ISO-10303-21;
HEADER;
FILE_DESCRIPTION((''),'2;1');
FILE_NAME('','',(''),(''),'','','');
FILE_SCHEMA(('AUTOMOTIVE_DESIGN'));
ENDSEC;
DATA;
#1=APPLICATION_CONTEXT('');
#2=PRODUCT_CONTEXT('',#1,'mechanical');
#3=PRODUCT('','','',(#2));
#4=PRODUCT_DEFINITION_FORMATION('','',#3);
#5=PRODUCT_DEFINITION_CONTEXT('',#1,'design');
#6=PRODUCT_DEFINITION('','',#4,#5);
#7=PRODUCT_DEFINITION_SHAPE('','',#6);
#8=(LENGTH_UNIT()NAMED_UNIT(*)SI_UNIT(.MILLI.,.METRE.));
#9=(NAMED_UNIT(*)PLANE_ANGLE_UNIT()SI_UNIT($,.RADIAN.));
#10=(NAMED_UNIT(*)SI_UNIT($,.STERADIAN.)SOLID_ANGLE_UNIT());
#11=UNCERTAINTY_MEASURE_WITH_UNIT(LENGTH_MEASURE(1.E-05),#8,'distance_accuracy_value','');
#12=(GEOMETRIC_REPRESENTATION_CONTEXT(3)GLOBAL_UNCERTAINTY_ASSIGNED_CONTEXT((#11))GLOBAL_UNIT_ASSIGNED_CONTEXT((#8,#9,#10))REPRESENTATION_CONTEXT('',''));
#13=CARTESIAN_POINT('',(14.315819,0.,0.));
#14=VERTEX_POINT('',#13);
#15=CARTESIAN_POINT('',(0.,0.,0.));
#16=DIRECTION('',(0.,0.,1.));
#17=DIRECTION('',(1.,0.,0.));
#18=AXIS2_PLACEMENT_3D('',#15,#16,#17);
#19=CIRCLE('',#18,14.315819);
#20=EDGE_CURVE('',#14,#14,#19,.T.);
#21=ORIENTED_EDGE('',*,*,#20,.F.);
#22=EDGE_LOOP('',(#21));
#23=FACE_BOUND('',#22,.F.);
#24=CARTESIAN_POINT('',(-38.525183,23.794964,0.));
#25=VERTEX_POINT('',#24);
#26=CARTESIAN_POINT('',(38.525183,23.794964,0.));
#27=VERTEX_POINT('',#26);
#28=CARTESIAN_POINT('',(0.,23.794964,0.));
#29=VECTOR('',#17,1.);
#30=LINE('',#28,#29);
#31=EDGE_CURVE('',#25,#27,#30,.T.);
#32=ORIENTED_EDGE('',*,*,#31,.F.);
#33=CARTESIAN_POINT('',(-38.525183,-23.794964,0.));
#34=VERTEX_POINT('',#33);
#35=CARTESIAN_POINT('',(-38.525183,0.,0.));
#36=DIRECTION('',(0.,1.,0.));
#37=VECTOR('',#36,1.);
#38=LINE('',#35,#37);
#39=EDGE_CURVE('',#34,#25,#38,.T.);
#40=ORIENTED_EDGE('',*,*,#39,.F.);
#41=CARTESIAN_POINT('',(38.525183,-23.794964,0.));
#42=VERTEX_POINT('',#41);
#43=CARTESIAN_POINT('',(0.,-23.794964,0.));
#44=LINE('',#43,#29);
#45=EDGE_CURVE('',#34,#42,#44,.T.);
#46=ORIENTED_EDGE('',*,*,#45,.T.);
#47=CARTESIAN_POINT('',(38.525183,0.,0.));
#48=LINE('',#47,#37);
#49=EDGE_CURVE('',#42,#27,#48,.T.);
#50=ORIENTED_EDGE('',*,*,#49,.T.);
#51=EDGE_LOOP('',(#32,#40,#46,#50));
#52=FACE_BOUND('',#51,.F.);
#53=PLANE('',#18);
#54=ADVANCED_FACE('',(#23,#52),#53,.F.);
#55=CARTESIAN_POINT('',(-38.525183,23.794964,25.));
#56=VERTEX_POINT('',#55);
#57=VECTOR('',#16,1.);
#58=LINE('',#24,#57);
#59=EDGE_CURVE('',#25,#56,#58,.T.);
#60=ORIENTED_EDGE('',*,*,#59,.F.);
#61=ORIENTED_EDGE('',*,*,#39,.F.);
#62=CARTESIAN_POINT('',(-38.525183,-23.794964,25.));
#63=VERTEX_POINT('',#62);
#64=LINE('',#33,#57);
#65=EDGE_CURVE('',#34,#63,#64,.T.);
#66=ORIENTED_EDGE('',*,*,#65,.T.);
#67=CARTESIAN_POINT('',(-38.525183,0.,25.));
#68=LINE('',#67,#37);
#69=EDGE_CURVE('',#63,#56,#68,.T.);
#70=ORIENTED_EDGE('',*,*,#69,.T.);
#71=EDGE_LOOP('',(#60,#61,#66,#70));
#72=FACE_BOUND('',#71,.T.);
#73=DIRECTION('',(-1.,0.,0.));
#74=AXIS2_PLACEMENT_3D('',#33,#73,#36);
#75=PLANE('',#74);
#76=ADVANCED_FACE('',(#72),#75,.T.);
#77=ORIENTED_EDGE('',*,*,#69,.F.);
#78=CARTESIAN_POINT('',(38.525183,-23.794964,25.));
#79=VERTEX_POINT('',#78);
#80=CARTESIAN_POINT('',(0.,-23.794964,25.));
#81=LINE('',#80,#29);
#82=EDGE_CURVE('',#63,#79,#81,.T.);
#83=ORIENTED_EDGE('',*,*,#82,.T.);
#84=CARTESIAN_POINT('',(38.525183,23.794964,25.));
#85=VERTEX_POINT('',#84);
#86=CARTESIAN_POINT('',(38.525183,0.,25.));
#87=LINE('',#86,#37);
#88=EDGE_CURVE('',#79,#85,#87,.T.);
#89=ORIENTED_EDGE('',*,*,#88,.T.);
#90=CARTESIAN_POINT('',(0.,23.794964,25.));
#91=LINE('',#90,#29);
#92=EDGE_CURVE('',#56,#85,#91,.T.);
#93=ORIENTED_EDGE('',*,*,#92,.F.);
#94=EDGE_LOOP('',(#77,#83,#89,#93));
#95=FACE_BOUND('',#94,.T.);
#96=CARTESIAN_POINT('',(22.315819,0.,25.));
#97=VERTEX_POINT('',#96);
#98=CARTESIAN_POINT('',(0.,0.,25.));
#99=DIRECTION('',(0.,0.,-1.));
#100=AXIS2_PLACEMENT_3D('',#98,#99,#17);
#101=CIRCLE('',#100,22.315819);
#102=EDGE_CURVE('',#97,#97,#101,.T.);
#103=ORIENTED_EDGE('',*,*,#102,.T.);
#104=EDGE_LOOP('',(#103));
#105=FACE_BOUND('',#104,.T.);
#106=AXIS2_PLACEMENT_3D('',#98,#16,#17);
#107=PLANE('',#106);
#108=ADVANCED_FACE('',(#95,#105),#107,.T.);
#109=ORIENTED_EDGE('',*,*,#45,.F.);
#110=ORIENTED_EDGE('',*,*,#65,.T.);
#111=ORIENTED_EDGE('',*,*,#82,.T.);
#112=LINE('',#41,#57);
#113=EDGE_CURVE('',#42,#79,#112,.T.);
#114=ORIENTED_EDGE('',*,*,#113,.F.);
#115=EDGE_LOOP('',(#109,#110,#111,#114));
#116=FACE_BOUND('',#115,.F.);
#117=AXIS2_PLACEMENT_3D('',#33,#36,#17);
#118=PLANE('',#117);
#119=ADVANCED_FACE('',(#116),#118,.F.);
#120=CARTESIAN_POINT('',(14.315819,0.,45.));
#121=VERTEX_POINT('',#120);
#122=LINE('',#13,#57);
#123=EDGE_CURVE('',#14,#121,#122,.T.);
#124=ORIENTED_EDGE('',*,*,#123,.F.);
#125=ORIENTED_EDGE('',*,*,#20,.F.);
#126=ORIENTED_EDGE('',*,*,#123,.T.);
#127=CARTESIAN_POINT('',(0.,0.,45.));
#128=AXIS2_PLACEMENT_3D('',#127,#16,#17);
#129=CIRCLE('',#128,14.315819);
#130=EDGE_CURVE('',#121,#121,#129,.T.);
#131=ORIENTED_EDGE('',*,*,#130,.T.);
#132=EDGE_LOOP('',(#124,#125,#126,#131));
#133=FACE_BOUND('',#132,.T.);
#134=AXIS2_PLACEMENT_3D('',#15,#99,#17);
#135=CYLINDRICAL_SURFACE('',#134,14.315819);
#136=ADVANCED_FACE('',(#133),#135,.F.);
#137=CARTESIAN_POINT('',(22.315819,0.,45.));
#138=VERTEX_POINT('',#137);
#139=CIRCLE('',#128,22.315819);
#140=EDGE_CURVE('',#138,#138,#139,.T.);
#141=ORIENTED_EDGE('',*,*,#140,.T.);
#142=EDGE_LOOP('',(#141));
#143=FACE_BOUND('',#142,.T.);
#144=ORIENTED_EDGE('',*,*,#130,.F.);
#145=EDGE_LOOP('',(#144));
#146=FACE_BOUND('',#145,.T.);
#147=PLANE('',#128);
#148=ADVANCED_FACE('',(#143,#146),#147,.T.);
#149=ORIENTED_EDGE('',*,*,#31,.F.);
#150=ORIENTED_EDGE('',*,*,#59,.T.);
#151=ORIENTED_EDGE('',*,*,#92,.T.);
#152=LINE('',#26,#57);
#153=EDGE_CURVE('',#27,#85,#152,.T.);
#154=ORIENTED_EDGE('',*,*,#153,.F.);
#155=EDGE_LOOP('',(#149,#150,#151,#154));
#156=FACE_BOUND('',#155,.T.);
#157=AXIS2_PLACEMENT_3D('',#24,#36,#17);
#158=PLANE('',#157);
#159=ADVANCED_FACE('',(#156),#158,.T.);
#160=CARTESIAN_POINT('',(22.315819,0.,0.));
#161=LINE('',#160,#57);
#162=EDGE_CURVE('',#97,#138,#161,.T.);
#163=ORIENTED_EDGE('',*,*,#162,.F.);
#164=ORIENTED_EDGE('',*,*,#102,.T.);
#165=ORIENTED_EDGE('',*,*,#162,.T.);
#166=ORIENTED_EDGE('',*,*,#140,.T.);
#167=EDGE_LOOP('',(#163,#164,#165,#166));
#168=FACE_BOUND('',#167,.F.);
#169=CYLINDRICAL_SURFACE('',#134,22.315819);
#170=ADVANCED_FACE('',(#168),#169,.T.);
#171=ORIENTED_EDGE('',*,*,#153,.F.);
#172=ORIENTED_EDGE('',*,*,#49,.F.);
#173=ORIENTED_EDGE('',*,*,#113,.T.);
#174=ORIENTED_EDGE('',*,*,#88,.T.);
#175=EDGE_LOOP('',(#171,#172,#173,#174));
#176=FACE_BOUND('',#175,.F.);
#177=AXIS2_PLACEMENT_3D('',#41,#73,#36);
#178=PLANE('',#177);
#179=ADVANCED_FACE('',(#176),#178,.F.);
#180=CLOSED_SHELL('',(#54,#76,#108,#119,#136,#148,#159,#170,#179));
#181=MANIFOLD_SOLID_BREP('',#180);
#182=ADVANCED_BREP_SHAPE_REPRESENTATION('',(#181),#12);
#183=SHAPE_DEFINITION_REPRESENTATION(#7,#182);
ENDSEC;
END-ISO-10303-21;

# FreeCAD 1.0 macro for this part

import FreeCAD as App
import Part
import Sketcher

V = App.Vector


def add_polygon(sketch, points):
    """Adds a closed chain of lines whose ends are joined by coincident constraints."""
    first, n = sketch.GeometryCount, len(points)
    for a, b in zip(points, points[1:] + points[:1]):
        sketch.addGeometry(Part.LineSegment(App.Vector(*a, 0), App.Vector(*b, 0)), False)
    for i in range(n):
        sketch.addConstraint(Sketcher.Constraint("Coincident", first + i, 2, first + (i + 1) % n, 1))

doc = App.newDocument("Part")
body = doc.addObject("PartDesign::Body", "Body")

# Sketch on XY plane
sketch1 = body.newObject("Sketcher::SketchObject", "Sketch")
sketch1.AttachmentSupport = (doc.getObject("XY_Plane"), [""])
sketch1.MapMode = "FlatFace"
add_polygon(sketch1, [(-38.525183, 23.794964), (-38.525183, -23.794964), (38.525183, -23.794964), (38.525183, 23.794964)])  # lines 0-3
sketch1.addGeometry(Part.Circle(V(0, 0, 0), V(0, 0, 1), 14.315819), False)  # 4
sketch1.addConstraint([
    Sketcher.Constraint("Vertical", 0),
    Sketcher.Constraint("Horizontal", 1),
    Sketcher.Constraint("Vertical", 2),
    Sketcher.Constraint("Horizontal", 3),
    Sketcher.Constraint("Coincident", 4, 3, -1, 1),
    Sketcher.Constraint("Symmetric", 0, 2, 2, 2, -1, 1),
    Sketcher.Constraint("Diameter", 4, 28.631638),
    Sketcher.Constraint("DistanceX", 1, 1, 1, 2, 77.050366),
    Sketcher.Constraint("DistanceY", 0, 2, 0, 1, 47.589928),
])
pad1 = body.newObject("PartDesign::Pad", "Pad")
pad1.Profile = sketch1
pad1.Length = 25

# Sketch on XY plane
sketch2 = body.newObject("Sketcher::SketchObject", "Sketch001")
sketch2.AttachmentSupport = (doc.getObject("XY_Plane"), [""])
sketch2.MapMode = "FlatFace"
sketch2.addGeometry([
    Part.Circle(V(0, 0, 0), V(0, 0, 1), 22.315819),
    Part.Circle(V(0, 0, 0), V(0, 0, 1), 14.315819),
], False)
sketch2.addConstraint([
    Sketcher.Constraint("Coincident", 0, 3, -1, 1),
    Sketcher.Constraint("Coincident", 1, 3, -1, 1),
    Sketcher.Constraint("Diameter", 0, 44.631638),
    Sketcher.Constraint("Diameter", 1, 28.631638),
])
pad2 = body.newObject("PartDesign::Pad", "Pad001")
pad2.Profile = sketch2
pad2.Length = 45

doc.recompute()
